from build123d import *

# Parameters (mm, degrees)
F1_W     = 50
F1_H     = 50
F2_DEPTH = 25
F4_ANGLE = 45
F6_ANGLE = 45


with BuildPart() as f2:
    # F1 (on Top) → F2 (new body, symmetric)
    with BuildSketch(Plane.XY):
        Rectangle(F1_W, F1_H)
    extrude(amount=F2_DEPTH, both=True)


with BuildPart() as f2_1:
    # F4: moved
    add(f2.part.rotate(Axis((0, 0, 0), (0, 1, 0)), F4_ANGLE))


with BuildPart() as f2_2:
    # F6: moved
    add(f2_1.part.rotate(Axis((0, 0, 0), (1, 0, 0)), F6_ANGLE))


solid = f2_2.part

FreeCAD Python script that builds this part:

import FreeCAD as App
import Part
import Sketcher
from FreeCAD import Vector


def add_polygon(sketch, points):
    """Adds a closed chain of lines whose ends are joined by coincident constraints."""
    first, n = sketch.GeometryCount, len(points)
    for a, b in zip(points, points[1:] + points[:1]):
        sketch.addGeometry(Part.LineSegment(App.Vector(*a, 0), App.Vector(*b, 0)), False)
    for i in range(n):
        sketch.addConstraint(Sketcher.Constraint("Coincident", first + i, 2, first + (i + 1) % n, 1))

doc = App.newDocument("Part")
body = doc.addObject("PartDesign::Body", "Body")

sketch1 = doc.addObject("Sketcher::SketchObject", "Sketch")
body.addObject(sketch1)
sketch1.AttachmentSupport = (doc.XY_Plane, [""])
sketch1.MapMode = "FlatFace"
add_polygon(sketch1, [(-25, 25), (-25, -25), (25, -25), (25, 25)])
sketch1.addConstraint([
    Sketcher.Constraint("Vertical", 0),
    Sketcher.Constraint("Horizontal", 1),
    Sketcher.Constraint("Vertical", 2),
    Sketcher.Constraint("Horizontal", 3),
    Sketcher.Constraint("Symmetric", 0, 2, 2, 2, -1, 1),
    Sketcher.Constraint("Equal", 3, 0),
    Sketcher.Constraint("DistanceX", 1, 1, 1, 2, 50.0),
])
pad1 = doc.addObject("PartDesign::Pad", "Pad")
body.addObject(pad1)
pad1.Profile = sketch1
pad1.Length = 50
pad1.Midplane = True
body2 = doc.addObject("PartDesign::Body", "Body001")
doc.recompute()

body.Placement = App.Placement(Vector(0, 0, 0), App.Rotation(Vector(0, 1, 0), 45))
boolean = doc.addObject("PartDesign::Boolean", "Boolean")
body2.addObject(boolean)
boolean.Type = "Fuse"
boolean.addObjects([body])
body3 = doc.addObject("PartDesign::Body", "Body002")
doc.recompute()

body2.Placement = App.Placement(Vector(0, 0, 0), App.Rotation(Vector(1, 0, 0), 45))
boolean2 = doc.addObject("PartDesign::Boolean", "Boolean001")
body3.addObject(boolean2)
boolean2.Type = "Fuse"
boolean2.addObjects([body2])

doc.recompute()
